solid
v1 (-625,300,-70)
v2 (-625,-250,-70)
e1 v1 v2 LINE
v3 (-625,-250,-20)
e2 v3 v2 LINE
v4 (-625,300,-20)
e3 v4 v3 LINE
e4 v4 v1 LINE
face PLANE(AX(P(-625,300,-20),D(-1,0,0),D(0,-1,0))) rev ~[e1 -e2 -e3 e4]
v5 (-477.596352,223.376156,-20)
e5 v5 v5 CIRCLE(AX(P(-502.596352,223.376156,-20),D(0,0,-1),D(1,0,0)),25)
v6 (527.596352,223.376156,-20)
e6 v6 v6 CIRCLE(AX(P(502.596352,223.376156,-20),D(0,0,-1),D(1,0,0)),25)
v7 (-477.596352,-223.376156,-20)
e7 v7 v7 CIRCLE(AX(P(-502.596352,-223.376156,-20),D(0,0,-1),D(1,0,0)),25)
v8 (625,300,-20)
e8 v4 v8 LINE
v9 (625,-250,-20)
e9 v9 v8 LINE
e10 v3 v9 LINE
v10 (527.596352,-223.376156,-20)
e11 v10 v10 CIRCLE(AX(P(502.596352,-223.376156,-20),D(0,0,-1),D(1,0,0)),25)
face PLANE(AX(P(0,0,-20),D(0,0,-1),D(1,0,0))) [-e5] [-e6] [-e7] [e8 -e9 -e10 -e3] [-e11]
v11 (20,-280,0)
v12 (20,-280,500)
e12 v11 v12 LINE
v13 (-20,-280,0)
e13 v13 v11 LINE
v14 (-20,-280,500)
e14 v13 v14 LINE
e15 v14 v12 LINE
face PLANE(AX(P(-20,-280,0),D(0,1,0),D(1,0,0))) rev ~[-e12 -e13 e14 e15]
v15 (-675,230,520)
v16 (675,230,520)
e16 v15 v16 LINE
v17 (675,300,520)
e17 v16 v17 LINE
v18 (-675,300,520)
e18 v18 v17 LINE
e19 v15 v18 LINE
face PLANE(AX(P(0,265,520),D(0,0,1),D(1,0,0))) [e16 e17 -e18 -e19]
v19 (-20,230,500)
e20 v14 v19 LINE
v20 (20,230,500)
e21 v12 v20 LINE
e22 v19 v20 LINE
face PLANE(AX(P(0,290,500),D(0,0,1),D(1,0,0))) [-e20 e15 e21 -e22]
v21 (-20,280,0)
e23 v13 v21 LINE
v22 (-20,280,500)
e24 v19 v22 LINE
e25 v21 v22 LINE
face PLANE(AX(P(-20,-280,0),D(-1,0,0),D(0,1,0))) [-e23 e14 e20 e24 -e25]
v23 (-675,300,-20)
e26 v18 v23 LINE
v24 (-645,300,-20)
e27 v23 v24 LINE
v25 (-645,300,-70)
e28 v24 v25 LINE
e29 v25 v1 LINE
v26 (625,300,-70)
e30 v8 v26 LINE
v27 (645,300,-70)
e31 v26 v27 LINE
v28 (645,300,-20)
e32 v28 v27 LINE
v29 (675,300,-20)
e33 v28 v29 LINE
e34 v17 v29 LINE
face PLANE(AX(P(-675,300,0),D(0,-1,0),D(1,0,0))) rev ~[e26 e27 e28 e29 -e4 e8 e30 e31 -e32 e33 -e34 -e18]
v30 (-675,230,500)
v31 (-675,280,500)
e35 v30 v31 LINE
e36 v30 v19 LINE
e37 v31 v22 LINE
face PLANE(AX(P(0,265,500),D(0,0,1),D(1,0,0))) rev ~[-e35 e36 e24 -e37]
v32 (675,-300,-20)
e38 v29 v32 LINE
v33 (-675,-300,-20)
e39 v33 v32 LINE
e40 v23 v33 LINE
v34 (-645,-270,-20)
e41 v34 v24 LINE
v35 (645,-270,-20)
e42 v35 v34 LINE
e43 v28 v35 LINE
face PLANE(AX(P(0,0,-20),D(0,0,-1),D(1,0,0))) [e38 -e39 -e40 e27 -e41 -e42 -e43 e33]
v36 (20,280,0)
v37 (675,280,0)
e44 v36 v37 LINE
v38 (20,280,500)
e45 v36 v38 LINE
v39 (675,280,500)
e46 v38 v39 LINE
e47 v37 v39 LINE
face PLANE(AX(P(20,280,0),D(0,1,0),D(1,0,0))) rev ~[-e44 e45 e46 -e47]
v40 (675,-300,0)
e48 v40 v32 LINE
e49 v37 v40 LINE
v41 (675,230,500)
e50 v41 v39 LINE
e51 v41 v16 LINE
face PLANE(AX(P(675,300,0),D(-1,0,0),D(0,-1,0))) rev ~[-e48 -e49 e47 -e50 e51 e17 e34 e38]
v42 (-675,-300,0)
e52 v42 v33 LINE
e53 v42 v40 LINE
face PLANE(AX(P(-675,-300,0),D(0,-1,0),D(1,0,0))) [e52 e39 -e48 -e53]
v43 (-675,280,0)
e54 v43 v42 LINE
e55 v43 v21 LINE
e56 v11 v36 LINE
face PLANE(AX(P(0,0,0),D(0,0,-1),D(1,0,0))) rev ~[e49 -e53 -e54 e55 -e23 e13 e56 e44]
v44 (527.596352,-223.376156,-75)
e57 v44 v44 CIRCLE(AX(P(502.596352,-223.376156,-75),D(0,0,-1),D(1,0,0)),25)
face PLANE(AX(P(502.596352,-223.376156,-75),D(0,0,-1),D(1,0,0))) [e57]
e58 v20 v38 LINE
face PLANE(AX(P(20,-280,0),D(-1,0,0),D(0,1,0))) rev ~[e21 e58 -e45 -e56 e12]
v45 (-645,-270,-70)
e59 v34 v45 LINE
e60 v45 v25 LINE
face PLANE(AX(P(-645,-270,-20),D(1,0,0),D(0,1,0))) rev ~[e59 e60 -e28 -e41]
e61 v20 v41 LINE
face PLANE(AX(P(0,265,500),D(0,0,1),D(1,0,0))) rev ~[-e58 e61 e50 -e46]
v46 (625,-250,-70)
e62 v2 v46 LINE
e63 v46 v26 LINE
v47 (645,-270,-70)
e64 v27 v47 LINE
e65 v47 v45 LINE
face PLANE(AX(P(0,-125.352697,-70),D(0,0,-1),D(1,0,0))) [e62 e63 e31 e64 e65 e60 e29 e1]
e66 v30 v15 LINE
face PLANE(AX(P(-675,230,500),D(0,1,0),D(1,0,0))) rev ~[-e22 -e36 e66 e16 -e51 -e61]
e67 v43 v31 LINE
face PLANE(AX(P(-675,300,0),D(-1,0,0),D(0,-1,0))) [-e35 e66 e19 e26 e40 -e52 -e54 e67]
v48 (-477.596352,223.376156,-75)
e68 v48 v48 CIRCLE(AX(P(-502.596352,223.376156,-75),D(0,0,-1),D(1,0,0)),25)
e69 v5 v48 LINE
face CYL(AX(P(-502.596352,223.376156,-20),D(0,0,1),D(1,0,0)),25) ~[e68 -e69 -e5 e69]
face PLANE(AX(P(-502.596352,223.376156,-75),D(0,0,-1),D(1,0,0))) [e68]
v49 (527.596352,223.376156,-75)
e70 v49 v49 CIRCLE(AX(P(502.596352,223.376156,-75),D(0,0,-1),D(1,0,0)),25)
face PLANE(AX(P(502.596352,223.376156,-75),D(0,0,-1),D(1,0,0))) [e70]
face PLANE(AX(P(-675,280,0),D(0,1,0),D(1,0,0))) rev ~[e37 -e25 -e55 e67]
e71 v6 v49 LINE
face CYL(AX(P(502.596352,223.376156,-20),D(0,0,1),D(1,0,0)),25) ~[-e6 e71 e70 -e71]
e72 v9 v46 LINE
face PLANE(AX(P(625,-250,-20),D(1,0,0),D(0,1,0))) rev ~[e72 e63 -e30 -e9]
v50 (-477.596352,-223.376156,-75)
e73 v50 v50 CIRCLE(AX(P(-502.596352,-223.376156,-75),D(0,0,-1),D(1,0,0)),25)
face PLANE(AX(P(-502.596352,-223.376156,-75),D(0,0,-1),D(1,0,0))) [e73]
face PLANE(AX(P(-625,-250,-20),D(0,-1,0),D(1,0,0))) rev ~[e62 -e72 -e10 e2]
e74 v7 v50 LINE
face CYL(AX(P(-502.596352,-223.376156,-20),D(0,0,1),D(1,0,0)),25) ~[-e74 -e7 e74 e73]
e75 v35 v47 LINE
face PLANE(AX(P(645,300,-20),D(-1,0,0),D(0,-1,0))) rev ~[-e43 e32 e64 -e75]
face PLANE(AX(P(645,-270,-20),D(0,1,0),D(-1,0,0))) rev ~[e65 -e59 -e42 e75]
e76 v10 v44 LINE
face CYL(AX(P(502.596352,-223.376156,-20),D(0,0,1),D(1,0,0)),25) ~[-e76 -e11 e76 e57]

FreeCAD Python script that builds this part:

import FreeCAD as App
import Part
import Sketcher
from FreeCAD import Vector

doc = App.newDocument("Part")
params = doc.addObject("Spreadsheet::Sheet", "Params")
for row, (alias, value) in enumerate([
    ("sketch1_width", "655 mm"),
    ("sketch1_width2", "40 mm"),
    ("sketch1_height", "560 mm"),
    ("sketch1_height2", "20 mm"),
    ("pad1_length", "500 mm"),
    ("sketch2_width", "1350 mm"),
    ("sketch2_height", "70 mm"),
    ("pad2_length", "20 mm"),
    ("sketch3_width", "1350 mm"),
    ("sketch3_height", "600 mm"),
    ("pad3_length", "20 mm"),
    ("sketch4_diameter", "50 mm"),
    ("pad4_length", "55 mm"),
    ("sketch5_width", "1290 mm"),
    ("sketch5_width2", "20 mm"),
    ("sketch5_height", "570 mm"),
    ("sketch5_height2", "550 mm"),
    ("pad5_length", "50 mm"),
], start=1):
    params.set(f"A{row}", alias)
    params.set(f"B{row}", "=" + value)
    params.setAlias(f"B{row}", alias)

body = doc.addObject("PartDesign::Body", "Body")

# Sketch on XY plane
sketch1 = body.newObject("Sketcher::SketchObject", "Sketch")
sketch1.AttachmentSupport = (doc.getObject("XY_Plane"), [""])
sketch1.MapMode = "FlatFace"
sketch1.addGeometry(Part.LineSegment(Vector(-675, 280, 0), Vector(-20, 280, 0)), False)
sketch1.addGeometry(Part.LineSegment(Vector(-20, 280, 0), Vector(-20, -280, 0)), False)
sketch1.addGeometry(Part.LineSegment(Vector(-20, -280, 0), Vector(20, -280, 0)), False)
sketch1.addGeometry(Part.LineSegment(Vector(20, -280, 0), Vector(20, 280, 0)), False)
sketch1.addGeometry(Part.LineSegment(Vector(20, 280, 0), Vector(675, 280, 0)), False)
sketch1.addGeometry(Part.LineSegment(Vector(675, 280, 0), Vector(675, 300, 0)), False)
sketch1.addGeometry(Part.LineSegment(Vector(675, 300, 0), Vector(-675, 300, 0)), False)
sketch1.addGeometry(Part.LineSegment(Vector(-675, 300, 0), Vector(-675, 280, 0)), False)
sketch1.addConstraint(Sketcher.Constraint("Coincident", 0, 2, 1, 1))
sketch1.addConstraint(Sketcher.Constraint("Coincident", 1, 2, 2, 1))
sketch1.addConstraint(Sketcher.Constraint("Coincident", 2, 2, 3, 1))
sketch1.addConstraint(Sketcher.Constraint("Coincident", 3, 2, 4, 1))
sketch1.addConstraint(Sketcher.Constraint("Coincident", 4, 2, 5, 1))
sketch1.addConstraint(Sketcher.Constraint("Coincident", 5, 2, 6, 1))
sketch1.addConstraint(Sketcher.Constraint("Coincident", 6, 2, 7, 1))
sketch1.addConstraint(Sketcher.Constraint("Coincident", 7, 2, 0, 1))
sketch1.addConstraint(Sketcher.Constraint("Horizontal", 0))
sketch1.addConstraint(Sketcher.Constraint("Vertical", 1))
sketch1.addConstraint(Sketcher.Constraint("Horizontal", 2))
sketch1.addConstraint(Sketcher.Constraint("Vertical", 3))
sketch1.addConstraint(Sketcher.Constraint("Horizontal", 4))
sketch1.addConstraint(Sketcher.Constraint("Vertical", 5))
sketch1.addConstraint(Sketcher.Constraint("Horizontal", 6))
sketch1.addConstraint(Sketcher.Constraint("Vertical", 7))
sketch1.addConstraint(Sketcher.Constraint("Symmetric", 0, 2, 2, 2, -1, 1))
sketch1.addConstraint(Sketcher.Constraint("Symmetric", 4, 2, 7, 2, -2))
sketch1.addConstraint(Sketcher.Constraint("DistanceX", 0, 1, 0, 2, 655.0))
sketch1.addConstraint(Sketcher.Constraint("DistanceX", 2, 1, 2, 2, 40.0))
sketch1.addConstraint(Sketcher.Constraint("DistanceY", 1, 2, 1, 1, 560.0))
sketch1.addConstraint(Sketcher.Constraint("DistanceY", 5, 1, 5, 2, 20.0))
sketch1.setExpression("Constraints[18]", "Params.sketch1_width")
sketch1.setExpression("Constraints[19]", "Params.sketch1_width2")
sketch1.setExpression("Constraints[20]", "Params.sketch1_height")
sketch1.setExpression("Constraints[21]", "Params.sketch1_height2")
pad1 = body.newObject("PartDesign::Pad", "Pad")
pad1.Profile = sketch1
pad1.setExpression("Length", "Params.pad1_length")

# Sketch on XY plane
sketch2 = body.newObject("Sketcher::SketchObject", "Sketch001")
sketch2.AttachmentSupport = (doc.getObject("XY_Plane"), [""])
sketch2.MapMode = "FlatFace"
sketch2.AttachmentOffset = App.Placement(Vector(0, 0, 500), App.Rotation())
sketch2.addGeometry(Part.LineSegment(Vector(-675, 300, 0), Vector(-675, 230, 0)), False)
sketch2.addGeometry(Part.LineSegment(Vector(-675, 230, 0), Vector(675, 230, 0)), False)
sketch2.addGeometry(Part.LineSegment(Vector(675, 230, 0), Vector(675, 300, 0)), False)
sketch2.addGeometry(Part.LineSegment(Vector(675, 300, 0), Vector(-675, 300, 0)), False)
sketch2.addConstraint(Sketcher.Constraint("Coincident", 0, 2, 1, 1))
sketch2.addConstraint(Sketcher.Constraint("Coincident", 1, 2, 2, 1))
sketch2.addConstraint(Sketcher.Constraint("Coincident", 2, 2, 3, 1))
sketch2.addConstraint(Sketcher.Constraint("Coincident", 3, 2, 0, 1))
sketch2.addConstraint(Sketcher.Constraint("Vertical", 0))
sketch2.addConstraint(Sketcher.Constraint("Horizontal", 1))
sketch2.addConstraint(Sketcher.Constraint("Vertical", 2))
sketch2.addConstraint(Sketcher.Constraint("Horizontal", 3))
sketch2.addConstraint(Sketcher.Constraint("DistanceX", 1, 1, 1, 2, 1350.0))
sketch2.addConstraint(Sketcher.Constraint("DistanceY", 0, 2, 0, 1, 70.0))
sketch2.addConstraint(Sketcher.Constraint("DistanceX", 0, 2, -1, 1, 675.0))
sketch2.addConstraint(Sketcher.Constraint("DistanceY", -1, 1, 0, 2, 230.0))
sketch2.setExpression("Constraints[8]", "Params.sketch2_width")
sketch2.setExpression("Constraints[9]", "Params.sketch2_height")
pad2 = body.newObject("PartDesign::Pad", "Pad001")
pad2.Profile = sketch2
pad2.setExpression("Length", "Params.pad2_length")

# Sketch on XY plane
sketch3 = body.newObject("Sketcher::SketchObject", "Sketch002")
sketch3.AttachmentSupport = (doc.getObject("XY_Plane"), [""])
sketch3.MapMode = "FlatFace"
sketch3.addGeometry(Part.LineSegment(Vector(-675, -300, 0), Vector(-675, 300, 0)), False)
sketch3.addGeometry(Part.LineSegment(Vector(-675, 300, 0), Vector(675, 300, 0)), False)
sketch3.addGeometry(Part.LineSegment(Vector(675, 300, 0), Vector(675, -300, 0)), False)
sketch3.addGeometry(Part.LineSegment(Vector(675, -300, 0), Vector(-675, -300, 0)), False)
sketch3.addConstraint(Sketcher.Constraint("Coincident", 0, 2, 1, 1))
sketch3.addConstraint(Sketcher.Constraint("Coincident", 1, 2, 2, 1))
sketch3.addConstraint(Sketcher.Constraint("Coincident", 2, 2, 3, 1))
sketch3.addConstraint(Sketcher.Constraint("Coincident", 3, 2, 0, 1))
sketch3.addConstraint(Sketcher.Constraint("Vertical", 0))
sketch3.addConstraint(Sketcher.Constraint("Horizontal", 1))
sketch3.addConstraint(Sketcher.Constraint("Vertical", 2))
sketch3.addConstraint(Sketcher.Constraint("Horizontal", 3))
sketch3.addConstraint(Sketcher.Constraint("Symmetric", 0, 2, 2, 2, -1, 1))
sketch3.addConstraint(Sketcher.Constraint("DistanceX", 1, 1, 1, 2, 1350.0))
sketch3.addConstraint(Sketcher.Constraint("DistanceY", 0, 1, 0, 2, 600.0))
sketch3.setExpression("Constraints[9]", "Params.sketch3_width")
sketch3.setExpression("Constraints[10]", "Params.sketch3_height")
pad3 = body.newObject("PartDesign::Pad", "Pad002")
pad3.Profile = sketch3
pad3.setExpression("Length", "Params.pad3_length")
pad3.Reversed = True

# Sketch on XY plane
sketch4 = body.newObject("Sketcher::SketchObject", "Sketch003")
sketch4.AttachmentSupport = (doc.getObject("XY_Plane"), [""])
sketch4.MapMode = "FlatFace"
sketch4.AttachmentOffset = App.Placement(Vector(0, 0, -20), App.Rotation())
sketch4.addGeometry(Part.Circle(Vector(-502.596352, -223.376156, 0), Vector(0, 0, 1), 25), False)
sketch4.addGeometry(Part.Circle(Vector(-502.596352, 223.376156, 0), Vector(0, 0, 1), 25), False)
sketch4.addGeometry(Part.Circle(Vector(502.596352, 223.376156, 0), Vector(0, 0, 1), 25), False)
sketch4.addGeometry(Part.Circle(Vector(502.596352, -223.376156, 0), Vector(0, 0, 1), 25), False)
sketch4.addConstraint(Sketcher.Constraint("Equal", 0, 1))
sketch4.addConstraint(Sketcher.Constraint("Equal", 1, 2))
sketch4.addConstraint(Sketcher.Constraint("Equal", 2, 3))
sketch4.addConstraint(Sketcher.Constraint("Symmetric", 0, 3, 2, 3, -1, 1))
sketch4.addConstraint(Sketcher.Constraint("Symmetric", 1, 3, 3, 3, -1, 1))
sketch4.addConstraint(Sketcher.Constraint("Symmetric", 1, 3, 2, 3, -2))
sketch4.addConstraint(Sketcher.Constraint("Diameter", 0, 50.0))
sketch4.addConstraint(Sketcher.Constraint("DistanceY", 0, 3, 1, 3, 446.752312))
sketch4.addConstraint(Sketcher.Constraint("DistanceX", 0, 3, -1, 1, 502.596352))
sketch4.setExpression("Constraints[6]", "Params.sketch4_diameter")
pad4 = body.newObject("PartDesign::Pad", "Pad003")
pad4.Profile = sketch4
pad4.setExpression("Length", "Params.pad4_length")
pad4.Reversed = True

# Sketch on XY plane
sketch5 = body.newObject("Sketcher::SketchObject", "Sketch004")
sketch5.AttachmentSupport = (doc.getObject("XY_Plane"), [""])
sketch5.MapMode = "FlatFace"
sketch5.AttachmentOffset = App.Placement(Vector(0, 0, -20), App.Rotation())
sketch5.addGeometry(Part.LineSegment(Vector(645, -270, 0), Vector(-645, -270, 0)), False)
sketch5.addGeometry(Part.LineSegment(Vector(-645, -270, 0), Vector(-645, 300, 0)), False)
sketch5.addGeometry(Part.LineSegment(Vector(-645, 300, 0), Vector(-625, 300, 0)), False)
sketch5.addGeometry(Part.LineSegment(Vector(-625, 300, 0), Vector(-625, -250, 0)), False)
sketch5.addGeometry(Part.LineSegment(Vector(-625, -250, 0), Vector(625, -250, 0)), False)
sketch5.addGeometry(Part.LineSegment(Vector(625, -250, 0), Vector(625, 300, 0)), False)
sketch5.addGeometry(Part.LineSegment(Vector(625, 300, 0), Vector(645, 300, 0)), False)
sketch5.addGeometry(Part.LineSegment(Vector(645, 300, 0), Vector(645, -270, 0)), False)
sketch5.addConstraint(Sketcher.Constraint("Coincident", 0, 2, 1, 1))
sketch5.addConstraint(Sketcher.Constraint("Coincident", 1, 2, 2, 1))
sketch5.addConstraint(Sketcher.Constraint("Coincident", 2, 2, 3, 1))
sketch5.addConstraint(Sketcher.Constraint("Coincident", 3, 2, 4, 1))
sketch5.addConstraint(Sketcher.Constraint("Coincident", 4, 2, 5, 1))
sketch5.addConstraint(Sketcher.Constraint("Coincident", 5, 2, 6, 1))
sketch5.addConstraint(Sketcher.Constraint("Coincident", 6, 2, 7, 1))
sketch5.addConstraint(Sketcher.Constraint("Coincident", 7, 2, 0, 1))
sketch5.addConstraint(Sketcher.Constraint("Horizontal", 0))
sketch5.addConstraint(Sketcher.Constraint("Vertical", 1))
sketch5.addConstraint(Sketcher.Constraint("Horizontal", 2))
sketch5.addConstraint(Sketcher.Constraint("Vertical", 3))
sketch5.addConstraint(Sketcher.Constraint("Horizontal", 4))
sketch5.addConstraint(Sketcher.Constraint("Vertical", 5))
sketch5.addConstraint(Sketcher.Constraint("Horizontal", 6))
sketch5.addConstraint(Sketcher.Constraint("Vertical", 7))
sketch5.addConstraint(Sketcher.Constraint("Symmetric", 2, 2, 5, 2, -2))
sketch5.addConstraint(Sketcher.Constraint("Equal", 2, 6))
sketch5.addConstraint(Sketcher.Constraint("DistanceX", 0, 2, 0, 1, 1290.0))
sketch5.addConstraint(Sketcher.Constraint("DistanceX", 2, 1, 2, 2, 20.0))
sketch5.addConstraint(Sketcher.Constraint("DistanceY", 1, 1, 1, 2, 570.0))
sketch5.addConstraint(Sketcher.Constraint("DistanceY", 3, 2, 3, 1, 550.0))
sketch5.addConstraint(Sketcher.Constraint("DistanceY", 0, 2, -1, 1, 270.0))
sketch5.setExpression("Constraints[18]", "Params.sketch5_width")
sketch5.setExpression("Constraints[19]", "Params.sketch5_width2")
sketch5.setExpression("Constraints[20]", "Params.sketch5_height")
sketch5.setExpression("Constraints[21]", "Params.sketch5_height2")
pad5 = body.newObject("PartDesign::Pad", "Pad004")
pad5.Profile = sketch5
pad5.setExpression("Length", "Params.pad5_length")
pad5.Reversed = True

doc.recompute()
